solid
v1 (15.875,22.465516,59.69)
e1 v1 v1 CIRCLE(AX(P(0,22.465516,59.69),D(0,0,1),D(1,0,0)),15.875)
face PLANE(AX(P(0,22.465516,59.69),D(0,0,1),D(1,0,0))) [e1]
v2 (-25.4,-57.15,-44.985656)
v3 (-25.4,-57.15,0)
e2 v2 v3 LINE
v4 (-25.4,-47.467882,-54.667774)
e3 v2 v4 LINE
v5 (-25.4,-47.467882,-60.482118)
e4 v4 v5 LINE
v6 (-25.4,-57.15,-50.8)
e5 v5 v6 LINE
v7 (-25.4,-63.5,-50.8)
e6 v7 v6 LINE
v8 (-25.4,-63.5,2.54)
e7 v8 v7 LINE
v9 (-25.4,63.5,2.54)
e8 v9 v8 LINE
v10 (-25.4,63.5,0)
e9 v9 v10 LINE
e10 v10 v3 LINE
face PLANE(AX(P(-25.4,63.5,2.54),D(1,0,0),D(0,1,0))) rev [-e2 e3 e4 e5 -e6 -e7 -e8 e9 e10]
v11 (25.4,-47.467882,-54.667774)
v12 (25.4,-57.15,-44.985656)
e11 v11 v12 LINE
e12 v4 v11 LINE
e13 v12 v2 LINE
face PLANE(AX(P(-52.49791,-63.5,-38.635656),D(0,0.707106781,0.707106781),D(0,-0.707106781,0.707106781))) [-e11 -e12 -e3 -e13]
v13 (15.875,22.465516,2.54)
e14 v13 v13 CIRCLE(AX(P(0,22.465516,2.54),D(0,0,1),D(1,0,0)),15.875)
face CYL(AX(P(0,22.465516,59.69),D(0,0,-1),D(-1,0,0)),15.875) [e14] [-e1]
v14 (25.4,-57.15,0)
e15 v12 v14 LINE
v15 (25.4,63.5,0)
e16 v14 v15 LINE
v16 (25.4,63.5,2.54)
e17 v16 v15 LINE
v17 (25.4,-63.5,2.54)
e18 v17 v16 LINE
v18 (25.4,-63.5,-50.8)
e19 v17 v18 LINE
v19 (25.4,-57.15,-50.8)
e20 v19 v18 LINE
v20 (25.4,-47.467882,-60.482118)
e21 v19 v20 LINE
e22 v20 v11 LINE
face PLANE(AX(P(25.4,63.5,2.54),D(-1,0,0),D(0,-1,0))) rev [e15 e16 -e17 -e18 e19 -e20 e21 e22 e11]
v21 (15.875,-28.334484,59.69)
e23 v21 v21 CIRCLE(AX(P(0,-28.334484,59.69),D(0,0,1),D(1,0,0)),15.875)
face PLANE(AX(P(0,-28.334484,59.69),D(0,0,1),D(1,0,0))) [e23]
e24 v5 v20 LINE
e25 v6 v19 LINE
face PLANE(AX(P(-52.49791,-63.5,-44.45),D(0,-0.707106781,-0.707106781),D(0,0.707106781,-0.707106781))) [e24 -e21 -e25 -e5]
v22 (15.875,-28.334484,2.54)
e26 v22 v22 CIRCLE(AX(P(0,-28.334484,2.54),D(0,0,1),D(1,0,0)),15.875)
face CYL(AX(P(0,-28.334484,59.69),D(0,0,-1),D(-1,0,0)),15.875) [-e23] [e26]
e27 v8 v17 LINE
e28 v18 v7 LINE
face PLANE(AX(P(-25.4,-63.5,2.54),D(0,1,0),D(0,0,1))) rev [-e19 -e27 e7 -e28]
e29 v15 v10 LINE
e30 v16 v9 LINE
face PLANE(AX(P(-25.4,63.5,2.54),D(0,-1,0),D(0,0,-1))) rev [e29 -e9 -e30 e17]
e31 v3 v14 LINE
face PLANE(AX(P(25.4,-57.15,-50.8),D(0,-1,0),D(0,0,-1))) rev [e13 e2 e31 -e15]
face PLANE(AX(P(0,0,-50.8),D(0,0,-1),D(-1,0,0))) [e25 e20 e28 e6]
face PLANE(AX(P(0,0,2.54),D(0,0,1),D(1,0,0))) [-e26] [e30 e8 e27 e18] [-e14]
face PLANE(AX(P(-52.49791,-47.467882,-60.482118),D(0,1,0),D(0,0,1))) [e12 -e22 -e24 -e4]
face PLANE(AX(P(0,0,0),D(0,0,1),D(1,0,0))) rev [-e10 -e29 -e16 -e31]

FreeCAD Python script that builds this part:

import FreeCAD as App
import Part
import Sketcher
from FreeCAD import Vector
Q = App.Units.Quantity


def add_polygon(sketch, points):
    """Adds a closed chain of lines whose ends are joined by coincident constraints."""
    first, n = sketch.GeometryCount, len(points)
    for a, b in zip(points, points[1:] + points[:1]):
        sketch.addGeometry(Part.LineSegment(App.Vector(*a, 0), App.Vector(*b, 0)), False)
    for i in range(n):
        sketch.addConstraint(Sketcher.Constraint("Coincident", first + i, 2, first + (i + 1) % n, 1))

doc = App.newDocument("Part")
body = doc.addObject("PartDesign::Body", "Body")

sketch1 = body.newObject("Sketcher::SketchObject", "Sketch")
sketch1.AttachmentSupport = (doc.getObject("XY_Plane"), [""])
sketch1.MapMode = "FlatFace"
add_polygon(sketch1, [(-25, 64), (-25, -64), (25, -64), (25, 64)])
sketch1.addConstraint([
    Sketcher.Constraint("Vertical", 0),
    Sketcher.Constraint("Horizontal", 1),
    Sketcher.Constraint("Vertical", 2),
    Sketcher.Constraint("Horizontal", 3),
    Sketcher.Constraint("Symmetric", 0, 2, 2, 2, -1, 1),
    Sketcher.Constraint("DistanceX", 1, 1, 1, 2, Q("2 in")),
    Sketcher.Constraint("DistanceY", 0, 2, 0, 1, Q("5 in")),
])
pad1 = body.newObject("PartDesign::Pad", "Pad")
pad1.Profile = sketch1
pad1.Length = Q("0.1 in")

sketch2 = body.newObject("Sketcher::SketchObject", "Sketch001")
sketch2.AttachmentSupport = (doc.getObject("XY_Plane"), [""])
sketch2.MapMode = "FlatFace"
sketch2.AttachmentOffset = App.Placement(Vector(0, 0, 0.1 * 25.4), App.Rotation())
sketch2.addGeometry([
    Part.Circle(Vector(0, 22, 0), Vector(0, 0, 1), 16),
    Part.Circle(Vector(0, -28, 0), Vector(0, 0, 1), 16),
], False)
sketch2.addConstraint([
    Sketcher.Constraint("Equal", 0, 1),
    Sketcher.Constraint("PointOnObject", 0, 3, -2),
    Sketcher.Constraint("PointOnObject", 1, 3, -2),
    Sketcher.Constraint("Diameter", 0, Q("1.25 in")),
    Sketcher.Constraint("DistanceY", 1, 3, 0, 3, Q("2 in")),
    Sketcher.Constraint("DistanceY", -1, 1, 0, 3, 22.465516),
])
pad2 = body.newObject("PartDesign::Pad", "Pad001")
pad2.Profile = sketch2
pad2.Length = Q("2.25 in")

sketch3 = body.newObject("Sketcher::SketchObject", "Sketch002")
sketch3.AttachmentSupport = (doc.getObject("XY_Plane"), [""])
sketch3.MapMode = "FlatFace"
add_polygon(sketch3, [(25, -57), (25, -64), (-25, -64), (-25, -57)])
sketch3.addConstraint([
    Sketcher.Constraint("Vertical", 0),
    Sketcher.Constraint("Horizontal", 1),
    Sketcher.Constraint("Vertical", 2),
    Sketcher.Constraint("Horizontal", 3),
    Sketcher.Constraint("DistanceX", 1, 2, 1, 1, Q("2 in")),
    Sketcher.Constraint("DistanceX", -1, 1, 0, 2, Q("1 in")),
    Sketcher.Constraint("DistanceY", 0, 2, 0, 1, Q("0.25 in")),
    Sketcher.Constraint("DistanceY", 0, 2, -1, 1, Q("2.5 in")),
])
pad3 = body.newObject("PartDesign::Pad", "Pad002")
pad3.Profile = sketch3
pad3.Length = Q("2 in")
pad3.Reversed = True

sketch4 = body.newObject("Sketcher::SketchObject", "Sketch003")
sketch4.AttachmentSupport = (doc.getObject("YZ_Plane"), [""])
sketch4.MapMode = "FlatFace"
sketch4.AttachmentOffset = App.Placement(Vector(0, 0, 1 * 25.4), App.Rotation())
add_polygon(sketch4, [(-64, -44), (-47, -60), (-47, -55), (-64, -39)])
sketch4.addConstraint([
    Sketcher.Constraint("Vertical", 1),
    Sketcher.Constraint("Vertical", 3),
    Sketcher.Constraint("Parallel", 0, 2),
    Sketcher.Constraint("Angle", 0, Q("-45 deg")),
    Sketcher.Constraint("DistanceX", 2, 2, -1, 1, Q("2.5 in")),
    Sketcher.Constraint("DistanceY", 3, 2, -1, 1, Q("1.75 in")),
    Sketcher.Constraint("Distance", 0, 22.672838),
    Sketcher.Constraint("DistanceY", 1, 1, 1, 2, 5.814344),
])
pad4 = body.newObject("PartDesign::Pad", "Pad003")
pad4.Profile = sketch4
pad4.Length = Q("2 in")
pad4.Reversed = True

doc.recompute()
